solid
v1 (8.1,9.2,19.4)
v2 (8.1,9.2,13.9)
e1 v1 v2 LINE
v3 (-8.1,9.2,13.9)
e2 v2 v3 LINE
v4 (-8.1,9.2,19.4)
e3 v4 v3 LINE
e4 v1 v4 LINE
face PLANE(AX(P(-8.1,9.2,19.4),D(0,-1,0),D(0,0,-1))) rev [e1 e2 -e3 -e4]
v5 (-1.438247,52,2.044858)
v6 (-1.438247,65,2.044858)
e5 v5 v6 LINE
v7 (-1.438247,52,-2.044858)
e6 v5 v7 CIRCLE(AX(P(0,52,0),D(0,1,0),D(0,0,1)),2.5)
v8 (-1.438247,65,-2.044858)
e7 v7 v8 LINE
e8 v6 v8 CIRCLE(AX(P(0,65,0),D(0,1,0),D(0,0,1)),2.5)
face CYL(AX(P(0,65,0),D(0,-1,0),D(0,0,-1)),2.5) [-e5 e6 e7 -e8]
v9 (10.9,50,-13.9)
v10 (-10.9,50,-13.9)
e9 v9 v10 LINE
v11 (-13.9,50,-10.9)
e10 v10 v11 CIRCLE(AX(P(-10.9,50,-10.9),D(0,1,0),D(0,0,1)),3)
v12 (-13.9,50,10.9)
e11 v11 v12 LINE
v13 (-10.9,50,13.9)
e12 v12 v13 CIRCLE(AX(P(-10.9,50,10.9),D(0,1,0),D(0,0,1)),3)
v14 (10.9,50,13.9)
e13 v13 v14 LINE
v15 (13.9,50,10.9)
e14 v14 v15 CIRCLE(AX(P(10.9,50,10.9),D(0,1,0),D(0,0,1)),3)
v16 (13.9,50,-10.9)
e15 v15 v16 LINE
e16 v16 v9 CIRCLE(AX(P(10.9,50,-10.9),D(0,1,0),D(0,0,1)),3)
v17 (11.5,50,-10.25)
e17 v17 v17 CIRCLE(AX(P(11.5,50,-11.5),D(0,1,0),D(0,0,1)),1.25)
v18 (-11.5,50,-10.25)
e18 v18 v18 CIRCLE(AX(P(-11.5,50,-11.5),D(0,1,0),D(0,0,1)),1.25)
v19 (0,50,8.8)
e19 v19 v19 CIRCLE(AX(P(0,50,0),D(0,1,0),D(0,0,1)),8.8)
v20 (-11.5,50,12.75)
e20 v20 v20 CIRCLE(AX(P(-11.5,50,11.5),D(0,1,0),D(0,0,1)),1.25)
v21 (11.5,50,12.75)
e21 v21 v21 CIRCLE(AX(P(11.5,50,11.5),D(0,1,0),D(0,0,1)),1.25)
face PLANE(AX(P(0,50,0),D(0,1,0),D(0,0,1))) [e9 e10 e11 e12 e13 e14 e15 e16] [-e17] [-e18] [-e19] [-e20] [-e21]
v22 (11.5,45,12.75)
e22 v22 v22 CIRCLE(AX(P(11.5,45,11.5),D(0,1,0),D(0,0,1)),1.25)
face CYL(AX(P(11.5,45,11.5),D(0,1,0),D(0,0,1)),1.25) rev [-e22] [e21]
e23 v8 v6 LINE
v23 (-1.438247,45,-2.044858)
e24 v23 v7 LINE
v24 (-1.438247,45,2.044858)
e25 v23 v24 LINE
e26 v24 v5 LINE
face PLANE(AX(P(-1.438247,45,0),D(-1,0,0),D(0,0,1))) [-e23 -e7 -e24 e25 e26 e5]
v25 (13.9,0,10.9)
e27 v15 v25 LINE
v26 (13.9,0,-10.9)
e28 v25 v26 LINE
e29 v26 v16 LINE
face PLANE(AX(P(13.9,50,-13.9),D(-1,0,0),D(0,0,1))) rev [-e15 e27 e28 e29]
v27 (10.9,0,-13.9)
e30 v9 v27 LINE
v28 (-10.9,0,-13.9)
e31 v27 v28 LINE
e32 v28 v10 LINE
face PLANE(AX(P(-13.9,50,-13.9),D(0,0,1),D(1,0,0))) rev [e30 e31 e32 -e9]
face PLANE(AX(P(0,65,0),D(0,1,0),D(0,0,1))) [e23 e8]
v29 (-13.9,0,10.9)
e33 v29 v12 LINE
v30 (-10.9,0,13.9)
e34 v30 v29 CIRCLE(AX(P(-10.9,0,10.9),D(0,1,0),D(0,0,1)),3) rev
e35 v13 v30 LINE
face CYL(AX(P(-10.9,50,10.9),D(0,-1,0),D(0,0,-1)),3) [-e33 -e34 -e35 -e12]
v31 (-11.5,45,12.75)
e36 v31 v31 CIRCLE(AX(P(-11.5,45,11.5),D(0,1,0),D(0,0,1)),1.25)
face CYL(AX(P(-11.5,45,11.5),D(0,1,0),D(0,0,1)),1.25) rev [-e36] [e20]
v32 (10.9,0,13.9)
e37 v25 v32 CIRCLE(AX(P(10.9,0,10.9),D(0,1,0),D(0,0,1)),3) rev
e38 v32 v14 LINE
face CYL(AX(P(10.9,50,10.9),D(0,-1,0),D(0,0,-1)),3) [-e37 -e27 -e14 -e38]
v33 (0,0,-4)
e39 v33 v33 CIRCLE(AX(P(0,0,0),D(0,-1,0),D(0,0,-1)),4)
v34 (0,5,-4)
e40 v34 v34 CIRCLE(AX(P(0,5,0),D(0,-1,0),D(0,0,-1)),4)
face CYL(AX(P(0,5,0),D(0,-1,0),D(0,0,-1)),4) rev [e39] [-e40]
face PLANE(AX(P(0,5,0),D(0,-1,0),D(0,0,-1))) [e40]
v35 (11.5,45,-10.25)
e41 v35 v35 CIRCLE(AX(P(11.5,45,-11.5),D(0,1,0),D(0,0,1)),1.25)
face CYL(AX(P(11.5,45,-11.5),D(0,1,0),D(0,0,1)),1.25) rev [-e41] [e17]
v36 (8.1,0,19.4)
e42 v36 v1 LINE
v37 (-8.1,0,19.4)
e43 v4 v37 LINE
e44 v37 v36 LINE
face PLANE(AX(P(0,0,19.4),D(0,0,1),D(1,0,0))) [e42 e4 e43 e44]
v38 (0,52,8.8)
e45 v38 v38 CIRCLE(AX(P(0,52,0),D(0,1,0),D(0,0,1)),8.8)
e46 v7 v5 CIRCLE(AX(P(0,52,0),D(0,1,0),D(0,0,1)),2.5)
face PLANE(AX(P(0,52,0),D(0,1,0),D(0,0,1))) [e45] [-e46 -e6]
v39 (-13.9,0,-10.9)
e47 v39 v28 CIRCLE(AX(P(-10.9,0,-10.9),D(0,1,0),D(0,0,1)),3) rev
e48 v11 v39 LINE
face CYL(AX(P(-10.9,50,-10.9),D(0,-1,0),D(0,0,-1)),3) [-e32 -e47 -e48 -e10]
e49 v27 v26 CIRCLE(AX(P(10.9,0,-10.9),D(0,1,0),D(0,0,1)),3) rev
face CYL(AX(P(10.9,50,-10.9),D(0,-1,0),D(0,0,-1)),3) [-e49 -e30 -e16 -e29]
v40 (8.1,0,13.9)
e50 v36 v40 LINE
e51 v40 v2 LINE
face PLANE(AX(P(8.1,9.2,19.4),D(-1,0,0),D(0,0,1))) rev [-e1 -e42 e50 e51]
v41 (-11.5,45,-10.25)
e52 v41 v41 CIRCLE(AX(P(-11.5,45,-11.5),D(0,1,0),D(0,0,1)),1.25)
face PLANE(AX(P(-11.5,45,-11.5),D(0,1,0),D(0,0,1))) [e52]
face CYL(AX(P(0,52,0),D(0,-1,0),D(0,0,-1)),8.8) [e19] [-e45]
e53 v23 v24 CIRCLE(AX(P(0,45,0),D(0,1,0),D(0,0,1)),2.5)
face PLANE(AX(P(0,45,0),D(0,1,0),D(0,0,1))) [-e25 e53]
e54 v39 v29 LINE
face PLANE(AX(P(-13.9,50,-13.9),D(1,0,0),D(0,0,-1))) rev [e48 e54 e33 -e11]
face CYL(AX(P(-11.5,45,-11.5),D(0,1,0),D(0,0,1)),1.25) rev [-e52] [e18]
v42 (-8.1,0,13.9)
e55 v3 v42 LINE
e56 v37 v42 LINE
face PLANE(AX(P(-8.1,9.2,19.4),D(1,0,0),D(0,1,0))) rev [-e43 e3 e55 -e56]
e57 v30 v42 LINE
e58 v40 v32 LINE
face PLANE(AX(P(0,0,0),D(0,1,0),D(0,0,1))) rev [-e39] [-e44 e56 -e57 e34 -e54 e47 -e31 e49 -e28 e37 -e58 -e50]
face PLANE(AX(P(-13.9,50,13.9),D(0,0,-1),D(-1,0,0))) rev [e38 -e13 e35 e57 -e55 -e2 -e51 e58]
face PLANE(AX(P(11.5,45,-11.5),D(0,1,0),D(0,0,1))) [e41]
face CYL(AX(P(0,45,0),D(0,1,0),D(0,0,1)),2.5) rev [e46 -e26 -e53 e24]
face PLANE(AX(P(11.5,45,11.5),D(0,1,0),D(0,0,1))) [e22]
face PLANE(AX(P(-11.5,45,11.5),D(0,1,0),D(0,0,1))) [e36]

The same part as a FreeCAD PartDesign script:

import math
import FreeCAD as App
import Part
import Sketcher
from FreeCAD import Vector
Q = App.Units.Quantity


def edges_at(feature, points):
    """Names of the edges that pass closest to the given points."""
    edges = feature.Shape.Edges
    near = lambda p: min(range(len(edges)), key=lambda i: edges[i].distToShape(Part.Vertex(*p))[0])
    return sorted({f"Edge{near(p) + 1}" for p in points})


def add_polygon(sketch, points):
    """Adds a closed chain of lines whose ends are joined by coincident constraints."""
    first, n = sketch.GeometryCount, len(points)
    for a, b in zip(points, points[1:] + points[:1]):
        sketch.addGeometry(Part.LineSegment(App.Vector(*a, 0), App.Vector(*b, 0)), False)
    for i in range(n):
        sketch.addConstraint(Sketcher.Constraint("Coincident", first + i, 2, first + (i + 1) % n, 1))

doc = App.newDocument("Part")
body = doc.addObject("PartDesign::Body", "Body")

sketch1 = body.newObject("Sketcher::SketchObject", "Sketch")
sketch1.AttachmentSupport = (doc.getObject("XZ_Plane"), [""])
sketch1.MapMode = "FlatFace"
add_polygon(sketch1, [(-14, -14), (-14, 14), (14, 14), (14, -14)])
sketch1.addConstraint([
    Sketcher.Constraint("Vertical", 0),
    Sketcher.Constraint("Horizontal", 1),
    Sketcher.Constraint("Vertical", 2),
    Sketcher.Constraint("Horizontal", 3),
    Sketcher.Constraint("Symmetric", 0, 2, 2, 2, -1, 1),
    Sketcher.Constraint("Equal", 3, 0),
    Sketcher.Constraint("DistanceX", 1, 1, 1, 2, Q("27.8 mm")),
])
pad1 = body.newObject("PartDesign::Pad", "Pad")
pad1.Profile = sketch1
pad1.Length = 50
pad1.Reversed = True

sketch2 = body.newObject("Sketcher::SketchObject", "Sketch001")
sketch2.AttachmentSupport = (doc.getObject("XZ_Plane"), [""])
sketch2.MapMode = "FlatFace"
sketch2.AttachmentOffset = App.Placement(Vector(0, 0, -50), App.Rotation())
sketch2.addGeometry(Part.Circle(Vector(0, 0, 0), Vector(0, 0, 1), 9), False)
sketch2.addConstraint([
    Sketcher.Constraint("Coincident", 0, 3, -1, 1),
    Sketcher.Constraint("Diameter", 0, Q("17.6 mm")),
])
pad2 = body.newObject("PartDesign::Pad", "Pad001")
pad2.Profile = sketch2
pad2.Length = 2
pad2.Reversed = True

sketch3 = body.newObject("Sketcher::SketchObject", "Sketch002")
sketch3.AttachmentSupport = (doc.getObject("XZ_Plane"), [""])
sketch3.MapMode = "FlatFace"
sketch3.AttachmentOffset = App.Placement(Vector(0, 0, -52), App.Rotation())
sketch3.addGeometry(Part.Circle(Vector(0, 0, 0), Vector(0, 0, 1), 2.5), False)
sketch3.addConstraint([
    Sketcher.Constraint("Coincident", 0, 3, -1, 1),
    Sketcher.Constraint("Diameter", 0, Q("5 mm")),
])
pad3 = body.newObject("PartDesign::Pad", "Pad002")
pad3.Profile = sketch3
pad3.Length = 13
pad3.Reversed = True

sketch4 = body.newObject("Sketcher::SketchObject", "Sketch003")
sketch4.AttachmentSupport = (doc.getObject("XY_Plane"), [""])
sketch4.MapMode = "FlatFace"
sketch4.AttachmentOffset = App.Placement(Vector(0, 0, 13.9), App.Rotation())
add_polygon(sketch4, [(-8, 9), (-8, 0), (8, 0), (8, 9)])
sketch4.addConstraint([
    Sketcher.Constraint("Vertical", 0),
    Sketcher.Constraint("Horizontal", 1),
    Sketcher.Constraint("Vertical", 2),
    Sketcher.Constraint("Horizontal", 3),
    Sketcher.Constraint("Symmetric", 0, 2, 1, 2, -1, 1),
    Sketcher.Constraint("DistanceX", 1, 1, 1, 2, Q("16.2 mm")),
    Sketcher.Constraint("DistanceY", 0, 2, 0, 1, Q("9.2 mm")),
])
pad4 = body.newObject("PartDesign::Pad", "Pad003")
pad4.Profile = sketch4
pad4.Length = 5.5

sketch5 = body.newObject("Sketcher::SketchObject", "Sketch004")
sketch5.AttachmentSupport = (doc.getObject("XZ_Plane"), [""])
sketch5.MapMode = "FlatFace"
sketch5.AttachmentOffset = App.Placement(Vector(0, 0, -50), App.Rotation())
sketch5.addGeometry([
    Part.Circle(Vector(-11.5, -11.5, 0), Vector(0, 0, 1), 1.2),
    Part.Circle(Vector(11.5, -11.5, 0), Vector(0, 0, 1), 1.2),
    Part.Circle(Vector(11.5, 11.5, 0), Vector(0, 0, 1), 1.2),
    Part.Circle(Vector(-11.5, 11.5, 0), Vector(0, 0, 1), 1.2),
], False)
sketch5.addConstraint([
    Sketcher.Constraint("Equal", 0, 1),
    Sketcher.Constraint("Equal", 1, 2),
    Sketcher.Constraint("Equal", 2, 3),
    Sketcher.Constraint("Symmetric", 0, 3, 2, 3, -1, 1),
    Sketcher.Constraint("Symmetric", 1, 3, 3, 3, -1, 1),
    Sketcher.Constraint("Symmetric", 0, 3, 1, 3, -2),
    Sketcher.Constraint("Diameter", 0, Q("2.5 mm")),
    Sketcher.Constraint("DistanceX", 0, 3, 1, 3, Q("23 mm")),
    Sketcher.Constraint("DistanceY", 1, 3, 2, 3, Q("23 mm")),
])
pocket1 = body.newObject("PartDesign::Pocket", "Pocket")
pocket1.Profile = sketch5
pocket1.Length = 5
pocket1.Reversed = True
doc.recompute()

fillet = body.newObject("PartDesign::Fillet", "Fillet")
fillet.Base = (pocket1, edges_at(pocket1, [
    (13.9, 25, 13.9),
    (-13.9, 25, 13.9),
    (-13.9, 25, -13.9),
    (13.9, 25, -13.9),
]))
fillet.Radius = 3

sketch6 = body.newObject("Sketcher::SketchObject", "Sketch005")
sketch6.AttachmentSupport = (doc.getObject("XZ_Plane"), [""])
sketch6.MapMode = "FlatFace"
sketch6.addGeometry(Part.Circle(Vector(0, 0, 0), Vector(0, 0, 1), 4), False)
sketch6.addConstraint([
    Sketcher.Constraint("Coincident", 0, 3, -1, 1),
    Sketcher.Constraint("Diameter", 0, Q("8 mm")),
])
pocket2 = body.newObject("PartDesign::Pocket", "Pocket001")
pocket2.Profile = sketch6
pocket2.Length = 5

sketch7 = body.newObject("Sketcher::SketchObject", "Sketch006")
sketch7.AttachmentSupport = (doc.getObject("XZ_Plane"), [""])
sketch7.MapMode = "FlatFace"
sketch7.AttachmentOffset = App.Placement(Vector(0, 0, -45), App.Rotation())
sketch7.addGeometry([
    Part.LineSegment(Vector(-1.4, 2, 0), Vector(-1.4, -2, 0)),
    Part.ArcOfCircle(Part.Circle(Vector(0, 0, 0), Vector(0, 0, 1), 2.5), math.radians(125), math.radians(235)),
], False)
sketch7.addConstraint([
    Sketcher.Constraint("Coincident", 0, 1, 1, 1),
    Sketcher.Constraint("Coincident", 1, 2, 0, 2),
    Sketcher.Constraint("Vertical", 0),
    Sketcher.Constraint("Coincident", 1, 3, -1, 1),
    Sketcher.Constraint("Radius", 1, Q("2.5 mm")),
    Sketcher.Constraint("DistanceY", 0, 2, 0, 1, Q("4.089717 mm")),
])
pocket3 = body.newObject("PartDesign::Pocket", "Pocket002")
pocket3.Profile = sketch7
pocket3.Length = 20

doc.recompute()
